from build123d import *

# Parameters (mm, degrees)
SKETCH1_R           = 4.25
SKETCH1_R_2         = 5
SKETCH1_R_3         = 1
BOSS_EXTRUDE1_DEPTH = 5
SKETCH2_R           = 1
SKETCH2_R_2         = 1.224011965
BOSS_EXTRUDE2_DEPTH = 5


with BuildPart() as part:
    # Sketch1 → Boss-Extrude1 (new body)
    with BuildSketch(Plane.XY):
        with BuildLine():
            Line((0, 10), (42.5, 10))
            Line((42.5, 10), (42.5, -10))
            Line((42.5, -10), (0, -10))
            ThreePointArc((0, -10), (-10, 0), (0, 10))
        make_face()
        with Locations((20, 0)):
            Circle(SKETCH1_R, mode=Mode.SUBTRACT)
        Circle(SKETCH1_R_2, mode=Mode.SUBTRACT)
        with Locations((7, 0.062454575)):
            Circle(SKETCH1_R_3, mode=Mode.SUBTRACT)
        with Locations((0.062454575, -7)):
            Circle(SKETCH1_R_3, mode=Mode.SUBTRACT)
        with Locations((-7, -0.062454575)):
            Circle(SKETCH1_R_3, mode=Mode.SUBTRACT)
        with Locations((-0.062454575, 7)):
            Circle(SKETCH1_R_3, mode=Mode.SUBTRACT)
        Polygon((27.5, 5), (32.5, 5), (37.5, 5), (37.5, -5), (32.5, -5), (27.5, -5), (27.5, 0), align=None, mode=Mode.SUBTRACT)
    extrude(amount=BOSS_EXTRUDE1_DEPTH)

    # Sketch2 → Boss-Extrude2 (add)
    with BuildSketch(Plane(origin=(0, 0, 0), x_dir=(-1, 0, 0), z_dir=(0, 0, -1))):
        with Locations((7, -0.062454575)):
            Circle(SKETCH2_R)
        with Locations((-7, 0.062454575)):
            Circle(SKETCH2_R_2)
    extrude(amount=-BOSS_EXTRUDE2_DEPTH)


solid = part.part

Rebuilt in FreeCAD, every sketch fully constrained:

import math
import FreeCAD as App
import Part
import Sketcher
Q = App.Units.Quantity

doc = App.newDocument("Part")
body = doc.addObject("PartDesign::Body", "Body")

sketch1 = doc.addObject("Sketcher::SketchObject", "Sketch")
body.addObject(sketch1)
sketch1.AttachmentSupport = (doc.XY_Plane, [""])
sketch1.MapMode = "FlatFace"
sketch1.addGeometry([
    Part.LineSegment(App.Vector(42.5, 10, 0), App.Vector(0, 10, 0)),
    Part.ArcOfCircle(Part.Circle(App.Vector(0, 0, 0), App.Vector(0, 0, 1), 10), math.radians(90), math.radians(270)),
    Part.LineSegment(App.Vector(0, -10, 0), App.Vector(42.5, -10, 0)),
    Part.LineSegment(App.Vector(42.5, -10, 0), App.Vector(42.5, 10, 0)),
    Part.Circle(App.Vector(0.1, -7, 0), App.Vector(0, 0, 1), 1),
    Part.Circle(App.Vector(-7, -0.1, 0), App.Vector(0, 0, 1), 1),
    Part.LineSegment(App.Vector(27.5, 5, 0), App.Vector(37.5, 5, 0)),
    Part.LineSegment(App.Vector(37.5, 5, 0), App.Vector(37.5, -5, 0)),
    Part.LineSegment(App.Vector(37.5, -5, 0), App.Vector(27.5, -5, 0)),
    Part.LineSegment(App.Vector(27.5, -5, 0), App.Vector(27.5, 5, 0)),
    Part.Circle(App.Vector(20, 0, 0), App.Vector(0, 0, 1), 4.2),
    Part.Circle(App.Vector(7, 0.1, 0), App.Vector(0, 0, 1), 1),
    Part.Circle(App.Vector(0, 0, 0), App.Vector(0, 0, 1), 5),
    Part.Circle(App.Vector(-0.1, 7, 0), App.Vector(0, 0, 1), 1),
], False)
sketch1.addConstraint([
    Sketcher.Constraint("Tangent", 0, 2, 1, 1),
    Sketcher.Constraint("Tangent", 1, 2, 2, 1),
    Sketcher.Constraint("Coincident", 2, 2, 3, 1),
    Sketcher.Constraint("Coincident", 3, 2, 0, 1),
    Sketcher.Constraint("Coincident", 6, 2, 7, 1),
    Sketcher.Constraint("Coincident", 7, 2, 8, 1),
    Sketcher.Constraint("Coincident", 8, 2, 9, 1),
    Sketcher.Constraint("Coincident", 9, 2, 6, 1),
    Sketcher.Constraint("Horizontal", 0),
    Sketcher.Constraint("Horizontal", 2),
    Sketcher.Constraint("Vertical", 3),
    Sketcher.Constraint("Horizontal", 6),
    Sketcher.Constraint("Vertical", 7),
    Sketcher.Constraint("Horizontal", 8),
    Sketcher.Constraint("Vertical", 9),
    Sketcher.Constraint("Coincident", 1, 3, -1, 1),
    Sketcher.Constraint("Coincident", 12, 3, -1, 1),
    Sketcher.Constraint("Equal", 4, 5),
    Sketcher.Constraint("Equal", 5, 11),
    Sketcher.Constraint("Equal", 11, 13),
    Sketcher.Constraint("Symmetric", 5, 3, 11, 3, -1, 1),
    Sketcher.Constraint("Symmetric", 4, 3, 13, 3, -1, 1),
    Sketcher.Constraint("PointOnObject", 10, 3, -1),
    Sketcher.Constraint("Equal", 8, 7),
    Sketcher.Constraint("Diameter", 4, Q("2 mm")),
    Sketcher.Constraint("Diameter", 12, Q("10 mm")),
    Sketcher.Constraint("Radius", 1, Q("10 mm")),
    Sketcher.Constraint("Diameter", 10, Q("8.5 mm")),
    Sketcher.Constraint("DistanceX", 6, 1, 6, 2, Q("10 mm")),
    Sketcher.Constraint("DistanceX", 0, 2, 0, 1, Q("42.5 mm")),
    Sketcher.Constraint("DistanceY", 4, 3, -1, 1, Q("7 mm")),
    Sketcher.Constraint("DistanceX", 5, 3, -1, 1, Q("7 mm")),
    Sketcher.Constraint("DistanceX", -1, 1, 10, 3, Q("20 mm")),
    Sketcher.Constraint("DistanceY", -1, 1, 6, 2, Q("5 mm")),
    Sketcher.Constraint("DistanceX", 6, 2, 3, 2, Q("5 mm")),
    Sketcher.Constraint("DistanceY", 5, 3, 11, 3, Q("0.124909 mm")),
    Sketcher.Constraint("DistanceX", 13, 3, 4, 3, Q("0.124909 mm")),
])
pad1 = doc.addObject("PartDesign::Pad", "Pad")
body.addObject(pad1)
pad1.Profile = sketch1
pad1.Length = 5

sketch2 = doc.addObject("Sketcher::SketchObject", "Sketch001")
body.addObject(sketch2)
sketch2.AttachmentSupport = (doc.XY_Plane, [""])
sketch2.MapMode = "FlatFace"
sketch2.addGeometry([
    Part.Circle(App.Vector(-7, -0.1, 0), App.Vector(0, 0, 1), 1),
    Part.Circle(App.Vector(7, 0.1, 0), App.Vector(0, 0, 1), 1.2),
], False)
sketch2.addConstraint([
    Sketcher.Constraint("Symmetric", 0, 3, 1, 3, -1, 1),
    Sketcher.Constraint("Diameter", 0, Q("2 mm")),
    Sketcher.Constraint("DistanceX", 0, 3, -1, 1, Q("7 mm")),
    Sketcher.Constraint("Diameter", 1, Q("2.448024 mm")),
    Sketcher.Constraint("DistanceY", 0, 3, 1, 3, Q("0.124909 mm")),
])
pad2 = doc.addObject("PartDesign::Pad", "Pad001")
body.addObject(pad2)
pad2.Profile = sketch2
pad2.Length = 5

doc.recompute()
